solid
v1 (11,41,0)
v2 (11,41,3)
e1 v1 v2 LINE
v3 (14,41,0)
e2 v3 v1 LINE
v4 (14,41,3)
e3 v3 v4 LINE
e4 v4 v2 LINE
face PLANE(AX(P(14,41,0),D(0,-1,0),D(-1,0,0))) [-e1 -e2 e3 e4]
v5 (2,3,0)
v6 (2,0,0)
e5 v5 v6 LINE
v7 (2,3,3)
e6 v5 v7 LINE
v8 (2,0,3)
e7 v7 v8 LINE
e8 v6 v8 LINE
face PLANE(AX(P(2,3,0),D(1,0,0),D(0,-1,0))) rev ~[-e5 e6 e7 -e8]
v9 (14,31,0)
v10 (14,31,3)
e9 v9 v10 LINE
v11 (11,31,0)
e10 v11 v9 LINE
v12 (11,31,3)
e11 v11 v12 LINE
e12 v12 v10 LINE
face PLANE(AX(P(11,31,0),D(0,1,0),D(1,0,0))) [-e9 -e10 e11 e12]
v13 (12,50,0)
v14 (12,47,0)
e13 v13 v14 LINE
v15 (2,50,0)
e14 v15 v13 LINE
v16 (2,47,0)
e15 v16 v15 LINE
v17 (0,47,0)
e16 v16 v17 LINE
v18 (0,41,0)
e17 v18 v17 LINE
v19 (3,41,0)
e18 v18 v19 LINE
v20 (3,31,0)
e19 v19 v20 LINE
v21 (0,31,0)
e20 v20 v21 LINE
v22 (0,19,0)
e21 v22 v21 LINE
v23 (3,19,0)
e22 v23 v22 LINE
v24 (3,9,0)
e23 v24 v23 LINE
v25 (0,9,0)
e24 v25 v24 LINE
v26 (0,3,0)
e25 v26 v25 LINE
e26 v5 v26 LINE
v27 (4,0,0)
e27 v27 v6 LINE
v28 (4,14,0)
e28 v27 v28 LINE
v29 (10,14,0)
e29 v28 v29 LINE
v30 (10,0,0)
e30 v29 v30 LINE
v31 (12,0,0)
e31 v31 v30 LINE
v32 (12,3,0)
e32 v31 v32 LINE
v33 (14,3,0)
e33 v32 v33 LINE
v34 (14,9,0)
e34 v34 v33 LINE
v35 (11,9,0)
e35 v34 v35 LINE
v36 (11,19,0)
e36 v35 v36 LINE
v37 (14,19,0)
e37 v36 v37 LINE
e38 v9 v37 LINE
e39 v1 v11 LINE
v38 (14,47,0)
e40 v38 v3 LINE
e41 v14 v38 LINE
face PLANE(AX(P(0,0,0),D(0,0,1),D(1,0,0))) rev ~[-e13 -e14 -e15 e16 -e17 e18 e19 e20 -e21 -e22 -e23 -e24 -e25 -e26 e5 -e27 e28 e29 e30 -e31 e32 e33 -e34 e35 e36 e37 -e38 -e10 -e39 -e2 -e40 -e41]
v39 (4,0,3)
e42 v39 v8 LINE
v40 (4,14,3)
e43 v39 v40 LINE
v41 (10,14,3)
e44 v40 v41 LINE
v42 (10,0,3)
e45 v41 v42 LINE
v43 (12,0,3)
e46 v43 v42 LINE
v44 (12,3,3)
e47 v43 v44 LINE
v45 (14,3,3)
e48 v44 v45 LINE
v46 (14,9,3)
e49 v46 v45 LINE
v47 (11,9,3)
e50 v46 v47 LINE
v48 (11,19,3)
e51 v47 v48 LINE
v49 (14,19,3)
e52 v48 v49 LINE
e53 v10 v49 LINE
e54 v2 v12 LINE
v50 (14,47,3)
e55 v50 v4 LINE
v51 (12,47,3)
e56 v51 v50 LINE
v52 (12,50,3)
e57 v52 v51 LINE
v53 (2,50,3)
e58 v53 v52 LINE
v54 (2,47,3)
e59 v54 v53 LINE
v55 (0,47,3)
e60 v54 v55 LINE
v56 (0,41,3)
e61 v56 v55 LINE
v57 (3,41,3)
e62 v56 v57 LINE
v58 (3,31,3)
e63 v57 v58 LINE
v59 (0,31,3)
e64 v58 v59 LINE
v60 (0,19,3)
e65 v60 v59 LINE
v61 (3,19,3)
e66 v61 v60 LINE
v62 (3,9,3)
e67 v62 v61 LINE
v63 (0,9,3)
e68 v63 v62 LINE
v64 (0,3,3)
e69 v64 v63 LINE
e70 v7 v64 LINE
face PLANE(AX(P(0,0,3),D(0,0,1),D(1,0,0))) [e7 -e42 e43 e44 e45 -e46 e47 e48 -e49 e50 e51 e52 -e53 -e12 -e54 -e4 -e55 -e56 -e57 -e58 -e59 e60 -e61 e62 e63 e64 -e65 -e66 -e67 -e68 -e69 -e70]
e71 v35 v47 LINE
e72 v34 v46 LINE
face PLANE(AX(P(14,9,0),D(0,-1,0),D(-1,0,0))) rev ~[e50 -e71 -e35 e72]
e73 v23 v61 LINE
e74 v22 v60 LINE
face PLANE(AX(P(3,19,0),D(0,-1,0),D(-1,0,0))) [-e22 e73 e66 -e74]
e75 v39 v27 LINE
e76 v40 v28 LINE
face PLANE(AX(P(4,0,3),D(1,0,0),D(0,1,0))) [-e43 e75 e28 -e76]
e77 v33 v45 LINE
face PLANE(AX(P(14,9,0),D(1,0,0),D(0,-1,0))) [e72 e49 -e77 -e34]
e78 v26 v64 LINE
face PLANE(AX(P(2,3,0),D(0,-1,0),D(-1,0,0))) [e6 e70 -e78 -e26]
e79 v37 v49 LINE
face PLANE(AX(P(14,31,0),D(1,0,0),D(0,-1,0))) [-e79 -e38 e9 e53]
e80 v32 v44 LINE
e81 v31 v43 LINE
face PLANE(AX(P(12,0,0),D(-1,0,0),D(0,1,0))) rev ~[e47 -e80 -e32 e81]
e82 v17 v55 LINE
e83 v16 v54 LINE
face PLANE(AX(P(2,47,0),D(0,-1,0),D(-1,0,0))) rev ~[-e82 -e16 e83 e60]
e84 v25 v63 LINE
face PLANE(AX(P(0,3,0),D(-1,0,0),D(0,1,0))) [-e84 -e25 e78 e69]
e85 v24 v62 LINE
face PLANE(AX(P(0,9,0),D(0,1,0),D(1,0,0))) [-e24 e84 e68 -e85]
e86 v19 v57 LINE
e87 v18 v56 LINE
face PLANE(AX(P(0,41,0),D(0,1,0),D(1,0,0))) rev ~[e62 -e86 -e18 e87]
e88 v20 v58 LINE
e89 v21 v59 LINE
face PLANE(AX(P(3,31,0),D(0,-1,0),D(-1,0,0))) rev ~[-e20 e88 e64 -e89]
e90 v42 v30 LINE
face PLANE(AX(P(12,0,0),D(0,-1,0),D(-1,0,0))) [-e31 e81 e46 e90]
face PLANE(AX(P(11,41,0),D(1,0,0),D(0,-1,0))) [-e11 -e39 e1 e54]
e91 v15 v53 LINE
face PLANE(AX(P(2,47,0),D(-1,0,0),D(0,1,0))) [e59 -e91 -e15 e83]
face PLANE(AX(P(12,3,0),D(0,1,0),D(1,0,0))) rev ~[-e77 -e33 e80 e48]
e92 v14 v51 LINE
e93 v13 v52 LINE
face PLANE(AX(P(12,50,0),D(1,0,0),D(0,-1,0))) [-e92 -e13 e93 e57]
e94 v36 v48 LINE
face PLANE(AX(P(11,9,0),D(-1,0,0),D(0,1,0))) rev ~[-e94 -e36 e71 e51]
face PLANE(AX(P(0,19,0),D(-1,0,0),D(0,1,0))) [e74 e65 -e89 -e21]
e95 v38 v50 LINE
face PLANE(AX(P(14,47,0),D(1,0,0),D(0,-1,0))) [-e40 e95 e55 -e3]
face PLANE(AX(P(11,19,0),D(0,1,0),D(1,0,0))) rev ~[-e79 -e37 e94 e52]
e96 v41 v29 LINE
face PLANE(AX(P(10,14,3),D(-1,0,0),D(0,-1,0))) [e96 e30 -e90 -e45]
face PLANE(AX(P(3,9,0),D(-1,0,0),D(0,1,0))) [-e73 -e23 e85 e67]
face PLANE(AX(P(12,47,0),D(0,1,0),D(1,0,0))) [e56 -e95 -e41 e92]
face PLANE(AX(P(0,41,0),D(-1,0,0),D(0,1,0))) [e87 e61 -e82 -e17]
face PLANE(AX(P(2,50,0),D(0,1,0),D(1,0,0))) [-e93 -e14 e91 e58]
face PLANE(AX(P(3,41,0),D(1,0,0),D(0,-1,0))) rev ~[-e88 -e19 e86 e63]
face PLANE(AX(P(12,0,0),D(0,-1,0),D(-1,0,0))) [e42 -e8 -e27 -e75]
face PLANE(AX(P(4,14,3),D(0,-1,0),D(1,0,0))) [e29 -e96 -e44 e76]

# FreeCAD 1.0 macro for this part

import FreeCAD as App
import Part
import Sketcher
from FreeCAD import Vector
Q = App.Units.Quantity

doc = App.newDocument("Part")
body = doc.addObject("PartDesign::Body", "Body")

sketch1 = doc.addObject("Sketcher::SketchObject", "Sketch")
body.addObject(sketch1)
sketch1.AttachmentSupport = (doc.XY_Plane, [""])
sketch1.MapMode = "FlatFace"
sketch1.addGeometry([
    Part.LineSegment(Vector(12, 50, 0), Vector(2, 50, 0)),
    Part.LineSegment(Vector(2, 50, 0), Vector(2, 47, 0)),
    Part.LineSegment(Vector(2, 47, 0), Vector(0, 47, 0)),
    Part.LineSegment(Vector(0, 47, 0), Vector(0, 41, 0)),
    Part.LineSegment(Vector(0, 41, 0), Vector(3, 41, 0)),
    Part.LineSegment(Vector(3, 41, 0), Vector(3, 31, 0)),
    Part.LineSegment(Vector(3, 31, 0), Vector(0, 31, 0)),
    Part.LineSegment(Vector(0, 31, 0), Vector(0, 19, 0)),
    Part.LineSegment(Vector(0, 19, 0), Vector(3, 19, 0)),
    Part.LineSegment(Vector(3, 19, 0), Vector(3, 9, 0)),
    Part.LineSegment(Vector(3, 9, 0), Vector(0, 9, 0)),
    Part.LineSegment(Vector(0, 9, 0), Vector(0, 3, 0)),
    Part.LineSegment(Vector(0, 3, 0), Vector(2, 3, 0)),
    Part.LineSegment(Vector(2, 3, 0), Vector(2, 0, 0)),
    Part.LineSegment(Vector(2, 0, 0), Vector(12, 0, 0)),
    Part.LineSegment(Vector(12, 0, 0), Vector(12, 3, 0)),
    Part.LineSegment(Vector(12, 3, 0), Vector(14, 3, 0)),
    Part.LineSegment(Vector(14, 3, 0), Vector(14, 9, 0)),
    Part.LineSegment(Vector(14, 9, 0), Vector(11, 9, 0)),
    Part.LineSegment(Vector(11, 9, 0), Vector(11, 19, 0)),
    Part.LineSegment(Vector(11, 19, 0), Vector(14, 19, 0)),
    Part.LineSegment(Vector(14, 19, 0), Vector(14, 31, 0)),
    Part.LineSegment(Vector(14, 31, 0), Vector(11, 31, 0)),
    Part.LineSegment(Vector(11, 31, 0), Vector(11, 41, 0)),
    Part.LineSegment(Vector(11, 41, 0), Vector(14, 41, 0)),
    Part.LineSegment(Vector(14, 41, 0), Vector(14, 47, 0)),
    Part.LineSegment(Vector(14, 47, 0), Vector(12, 47, 0)),
    Part.LineSegment(Vector(12, 47, 0), Vector(12, 50, 0)),
], False)
sketch1.addConstraint([
    Sketcher.Constraint("Coincident", 0, 2, 1, 1),
    Sketcher.Constraint("Coincident", 1, 2, 2, 1),
    Sketcher.Constraint("Coincident", 2, 2, 3, 1),
    Sketcher.Constraint("Coincident", 3, 2, 4, 1),
    Sketcher.Constraint("Coincident", 4, 2, 5, 1),
    Sketcher.Constraint("Coincident", 5, 2, 6, 1),
    Sketcher.Constraint("Coincident", 6, 2, 7, 1),
    Sketcher.Constraint("Coincident", 7, 2, 8, 1),
    Sketcher.Constraint("Coincident", 8, 2, 9, 1),
    Sketcher.Constraint("Coincident", 9, 2, 10, 1),
    Sketcher.Constraint("Coincident", 10, 2, 11, 1),
    Sketcher.Constraint("Coincident", 11, 2, 12, 1),
    Sketcher.Constraint("Coincident", 12, 2, 13, 1),
    Sketcher.Constraint("Coincident", 13, 2, 14, 1),
    Sketcher.Constraint("Coincident", 14, 2, 15, 1),
    Sketcher.Constraint("Coincident", 15, 2, 16, 1),
    Sketcher.Constraint("Coincident", 16, 2, 17, 1),
    Sketcher.Constraint("Coincident", 17, 2, 18, 1),
    Sketcher.Constraint("Coincident", 18, 2, 19, 1),
    Sketcher.Constraint("Coincident", 19, 2, 20, 1),
    Sketcher.Constraint("Coincident", 20, 2, 21, 1),
    Sketcher.Constraint("Coincident", 21, 2, 22, 1),
    Sketcher.Constraint("Coincident", 22, 2, 23, 1),
    Sketcher.Constraint("Coincident", 23, 2, 24, 1),
    Sketcher.Constraint("Coincident", 24, 2, 25, 1),
    Sketcher.Constraint("Coincident", 25, 2, 26, 1),
    Sketcher.Constraint("Coincident", 26, 2, 27, 1),
    Sketcher.Constraint("Coincident", 27, 2, 0, 1),
    Sketcher.Constraint("Horizontal", 0),
    Sketcher.Constraint("Vertical", 1),
    Sketcher.Constraint("Horizontal", 2),
    Sketcher.Constraint("Vertical", 3),
    Sketcher.Constraint("Horizontal", 4),
    Sketcher.Constraint("Vertical", 5),
    Sketcher.Constraint("Horizontal", 6),
    Sketcher.Constraint("Vertical", 7),
    Sketcher.Constraint("Horizontal", 8),
    Sketcher.Constraint("Vertical", 9),
    Sketcher.Constraint("Horizontal", 10),
    Sketcher.Constraint("Vertical", 11),
    Sketcher.Constraint("Horizontal", 12),
    Sketcher.Constraint("Vertical", 13),
    Sketcher.Constraint("Horizontal", 14),
    Sketcher.Constraint("Vertical", 15),
    Sketcher.Constraint("Horizontal", 16),
    Sketcher.Constraint("Vertical", 17),
    Sketcher.Constraint("Horizontal", 18),
    Sketcher.Constraint("Vertical", 19),
    Sketcher.Constraint("Horizontal", 20),
    Sketcher.Constraint("Vertical", 21),
    Sketcher.Constraint("Horizontal", 22),
    Sketcher.Constraint("Vertical", 23),
    Sketcher.Constraint("Horizontal", 24),
    Sketcher.Constraint("Vertical", 25),
    Sketcher.Constraint("Horizontal", 26),
    Sketcher.Constraint("Vertical", 27),
    Sketcher.Constraint("PointOnObject", 2, 2, -2),
    Sketcher.Constraint("PointOnObject", 6, 2, -2),
    Sketcher.Constraint("PointOnObject", 10, 2, -2),
    Sketcher.Constraint("PointOnObject", 13, 2, -1),
    Sketcher.Constraint("Horizontal", 12, 2, 15, 2),
    Sketcher.Constraint("Horizontal", 10, 2, 17, 2),
    Sketcher.Constraint("Horizontal", 8, 2, 19, 2),
    Sketcher.Constraint("Horizontal", 6, 2, 21, 2),
    Sketcher.Constraint("Horizontal", 4, 2, 23, 2),
    Sketcher.Constraint("Horizontal", 2, 2, 25, 2),
    Sketcher.Constraint("Vertical", 5, 2, 8, 2),
    Sketcher.Constraint("Vertical", 1, 2, 12, 2),
    Sketcher.Constraint("Vertical", 17, 2, 20, 2),
    Sketcher.Constraint("Vertical", 19, 2, 22, 2),
    Sketcher.Constraint("Vertical", 21, 2, 24, 2),
    Sketcher.Constraint("Vertical", 15, 2, 26, 2),
    Sketcher.Constraint("Equal", 12, 16),
    Sketcher.Constraint("Equal", 10, 18),
    Sketcher.Constraint("Equal", 24, 1),
    Sketcher.Constraint("Equal", 14, 5),
    Sketcher.Constraint("Equal", 5, 9),
    Sketcher.Constraint("Equal", 3, 11),
    Sketcher.Constraint("Equal", 1, 13),
    Sketcher.Constraint("DistanceX", 0, 2, 0, 1, Q("10 mm")),
    Sketcher.Constraint("DistanceX", 4, 1, 4, 2, Q("3 mm")),
    Sketcher.Constraint("DistanceY", -1, 1, 0, 2, Q("50 mm")),
    Sketcher.Constraint("DistanceX", -1, 1, 16, 2, Q("14 mm")),
    Sketcher.Constraint("DistanceY", 3, 2, 3, 1, Q("6 mm")),
])
pad1 = doc.addObject("PartDesign::Pad", "Pad")
body.addObject(pad1)
pad1.Profile = sketch1
pad1.Length = 3

sketch2 = doc.addObject("Sketcher::SketchObject", "Sketch001")
body.addObject(sketch2)
sketch2.AttachmentSupport = (doc.XY_Plane, [""])
sketch2.MapMode = "FlatFace"
sketch2.AttachmentOffset = App.Placement(Vector(0, 0, 3), App.Rotation())
sketch2.addGeometry([
    Part.LineSegment(Vector(10, 14, 0), Vector(4, 14, 0)),
    Part.LineSegment(Vector(4, 14, 0), Vector(4, 0, 0)),
    Part.LineSegment(Vector(4, 0, 0), Vector(10, 0, 0)),
    Part.LineSegment(Vector(10, 0, 0), Vector(10, 14, 0)),
], False)
sketch2.addConstraint([
    Sketcher.Constraint("Coincident", 0, 2, 1, 1),
    Sketcher.Constraint("Coincident", 1, 2, 2, 1),
    Sketcher.Constraint("Coincident", 2, 2, 3, 1),
    Sketcher.Constraint("Coincident", 3, 2, 0, 1),
    Sketcher.Constraint("Horizontal", 0),
    Sketcher.Constraint("Vertical", 1),
    Sketcher.Constraint("Horizontal", 2),
    Sketcher.Constraint("Vertical", 3),
    Sketcher.Constraint("PointOnObject", 1, 2, -1),
    Sketcher.Constraint("DistanceX", 0, 2, 0, 1, Q("6 mm")),
    Sketcher.Constraint("DistanceY", 1, 2, 1, 1, Q("14 mm")),
    Sketcher.Constraint("DistanceX", -1, 1, 0, 2, Q("4 mm")),
])
pocket1 = doc.addObject("PartDesign::Pocket", "Pocket")
body.addObject(pocket1)
pocket1.Profile = sketch2
pocket1.Length = 10

doc.recompute()
